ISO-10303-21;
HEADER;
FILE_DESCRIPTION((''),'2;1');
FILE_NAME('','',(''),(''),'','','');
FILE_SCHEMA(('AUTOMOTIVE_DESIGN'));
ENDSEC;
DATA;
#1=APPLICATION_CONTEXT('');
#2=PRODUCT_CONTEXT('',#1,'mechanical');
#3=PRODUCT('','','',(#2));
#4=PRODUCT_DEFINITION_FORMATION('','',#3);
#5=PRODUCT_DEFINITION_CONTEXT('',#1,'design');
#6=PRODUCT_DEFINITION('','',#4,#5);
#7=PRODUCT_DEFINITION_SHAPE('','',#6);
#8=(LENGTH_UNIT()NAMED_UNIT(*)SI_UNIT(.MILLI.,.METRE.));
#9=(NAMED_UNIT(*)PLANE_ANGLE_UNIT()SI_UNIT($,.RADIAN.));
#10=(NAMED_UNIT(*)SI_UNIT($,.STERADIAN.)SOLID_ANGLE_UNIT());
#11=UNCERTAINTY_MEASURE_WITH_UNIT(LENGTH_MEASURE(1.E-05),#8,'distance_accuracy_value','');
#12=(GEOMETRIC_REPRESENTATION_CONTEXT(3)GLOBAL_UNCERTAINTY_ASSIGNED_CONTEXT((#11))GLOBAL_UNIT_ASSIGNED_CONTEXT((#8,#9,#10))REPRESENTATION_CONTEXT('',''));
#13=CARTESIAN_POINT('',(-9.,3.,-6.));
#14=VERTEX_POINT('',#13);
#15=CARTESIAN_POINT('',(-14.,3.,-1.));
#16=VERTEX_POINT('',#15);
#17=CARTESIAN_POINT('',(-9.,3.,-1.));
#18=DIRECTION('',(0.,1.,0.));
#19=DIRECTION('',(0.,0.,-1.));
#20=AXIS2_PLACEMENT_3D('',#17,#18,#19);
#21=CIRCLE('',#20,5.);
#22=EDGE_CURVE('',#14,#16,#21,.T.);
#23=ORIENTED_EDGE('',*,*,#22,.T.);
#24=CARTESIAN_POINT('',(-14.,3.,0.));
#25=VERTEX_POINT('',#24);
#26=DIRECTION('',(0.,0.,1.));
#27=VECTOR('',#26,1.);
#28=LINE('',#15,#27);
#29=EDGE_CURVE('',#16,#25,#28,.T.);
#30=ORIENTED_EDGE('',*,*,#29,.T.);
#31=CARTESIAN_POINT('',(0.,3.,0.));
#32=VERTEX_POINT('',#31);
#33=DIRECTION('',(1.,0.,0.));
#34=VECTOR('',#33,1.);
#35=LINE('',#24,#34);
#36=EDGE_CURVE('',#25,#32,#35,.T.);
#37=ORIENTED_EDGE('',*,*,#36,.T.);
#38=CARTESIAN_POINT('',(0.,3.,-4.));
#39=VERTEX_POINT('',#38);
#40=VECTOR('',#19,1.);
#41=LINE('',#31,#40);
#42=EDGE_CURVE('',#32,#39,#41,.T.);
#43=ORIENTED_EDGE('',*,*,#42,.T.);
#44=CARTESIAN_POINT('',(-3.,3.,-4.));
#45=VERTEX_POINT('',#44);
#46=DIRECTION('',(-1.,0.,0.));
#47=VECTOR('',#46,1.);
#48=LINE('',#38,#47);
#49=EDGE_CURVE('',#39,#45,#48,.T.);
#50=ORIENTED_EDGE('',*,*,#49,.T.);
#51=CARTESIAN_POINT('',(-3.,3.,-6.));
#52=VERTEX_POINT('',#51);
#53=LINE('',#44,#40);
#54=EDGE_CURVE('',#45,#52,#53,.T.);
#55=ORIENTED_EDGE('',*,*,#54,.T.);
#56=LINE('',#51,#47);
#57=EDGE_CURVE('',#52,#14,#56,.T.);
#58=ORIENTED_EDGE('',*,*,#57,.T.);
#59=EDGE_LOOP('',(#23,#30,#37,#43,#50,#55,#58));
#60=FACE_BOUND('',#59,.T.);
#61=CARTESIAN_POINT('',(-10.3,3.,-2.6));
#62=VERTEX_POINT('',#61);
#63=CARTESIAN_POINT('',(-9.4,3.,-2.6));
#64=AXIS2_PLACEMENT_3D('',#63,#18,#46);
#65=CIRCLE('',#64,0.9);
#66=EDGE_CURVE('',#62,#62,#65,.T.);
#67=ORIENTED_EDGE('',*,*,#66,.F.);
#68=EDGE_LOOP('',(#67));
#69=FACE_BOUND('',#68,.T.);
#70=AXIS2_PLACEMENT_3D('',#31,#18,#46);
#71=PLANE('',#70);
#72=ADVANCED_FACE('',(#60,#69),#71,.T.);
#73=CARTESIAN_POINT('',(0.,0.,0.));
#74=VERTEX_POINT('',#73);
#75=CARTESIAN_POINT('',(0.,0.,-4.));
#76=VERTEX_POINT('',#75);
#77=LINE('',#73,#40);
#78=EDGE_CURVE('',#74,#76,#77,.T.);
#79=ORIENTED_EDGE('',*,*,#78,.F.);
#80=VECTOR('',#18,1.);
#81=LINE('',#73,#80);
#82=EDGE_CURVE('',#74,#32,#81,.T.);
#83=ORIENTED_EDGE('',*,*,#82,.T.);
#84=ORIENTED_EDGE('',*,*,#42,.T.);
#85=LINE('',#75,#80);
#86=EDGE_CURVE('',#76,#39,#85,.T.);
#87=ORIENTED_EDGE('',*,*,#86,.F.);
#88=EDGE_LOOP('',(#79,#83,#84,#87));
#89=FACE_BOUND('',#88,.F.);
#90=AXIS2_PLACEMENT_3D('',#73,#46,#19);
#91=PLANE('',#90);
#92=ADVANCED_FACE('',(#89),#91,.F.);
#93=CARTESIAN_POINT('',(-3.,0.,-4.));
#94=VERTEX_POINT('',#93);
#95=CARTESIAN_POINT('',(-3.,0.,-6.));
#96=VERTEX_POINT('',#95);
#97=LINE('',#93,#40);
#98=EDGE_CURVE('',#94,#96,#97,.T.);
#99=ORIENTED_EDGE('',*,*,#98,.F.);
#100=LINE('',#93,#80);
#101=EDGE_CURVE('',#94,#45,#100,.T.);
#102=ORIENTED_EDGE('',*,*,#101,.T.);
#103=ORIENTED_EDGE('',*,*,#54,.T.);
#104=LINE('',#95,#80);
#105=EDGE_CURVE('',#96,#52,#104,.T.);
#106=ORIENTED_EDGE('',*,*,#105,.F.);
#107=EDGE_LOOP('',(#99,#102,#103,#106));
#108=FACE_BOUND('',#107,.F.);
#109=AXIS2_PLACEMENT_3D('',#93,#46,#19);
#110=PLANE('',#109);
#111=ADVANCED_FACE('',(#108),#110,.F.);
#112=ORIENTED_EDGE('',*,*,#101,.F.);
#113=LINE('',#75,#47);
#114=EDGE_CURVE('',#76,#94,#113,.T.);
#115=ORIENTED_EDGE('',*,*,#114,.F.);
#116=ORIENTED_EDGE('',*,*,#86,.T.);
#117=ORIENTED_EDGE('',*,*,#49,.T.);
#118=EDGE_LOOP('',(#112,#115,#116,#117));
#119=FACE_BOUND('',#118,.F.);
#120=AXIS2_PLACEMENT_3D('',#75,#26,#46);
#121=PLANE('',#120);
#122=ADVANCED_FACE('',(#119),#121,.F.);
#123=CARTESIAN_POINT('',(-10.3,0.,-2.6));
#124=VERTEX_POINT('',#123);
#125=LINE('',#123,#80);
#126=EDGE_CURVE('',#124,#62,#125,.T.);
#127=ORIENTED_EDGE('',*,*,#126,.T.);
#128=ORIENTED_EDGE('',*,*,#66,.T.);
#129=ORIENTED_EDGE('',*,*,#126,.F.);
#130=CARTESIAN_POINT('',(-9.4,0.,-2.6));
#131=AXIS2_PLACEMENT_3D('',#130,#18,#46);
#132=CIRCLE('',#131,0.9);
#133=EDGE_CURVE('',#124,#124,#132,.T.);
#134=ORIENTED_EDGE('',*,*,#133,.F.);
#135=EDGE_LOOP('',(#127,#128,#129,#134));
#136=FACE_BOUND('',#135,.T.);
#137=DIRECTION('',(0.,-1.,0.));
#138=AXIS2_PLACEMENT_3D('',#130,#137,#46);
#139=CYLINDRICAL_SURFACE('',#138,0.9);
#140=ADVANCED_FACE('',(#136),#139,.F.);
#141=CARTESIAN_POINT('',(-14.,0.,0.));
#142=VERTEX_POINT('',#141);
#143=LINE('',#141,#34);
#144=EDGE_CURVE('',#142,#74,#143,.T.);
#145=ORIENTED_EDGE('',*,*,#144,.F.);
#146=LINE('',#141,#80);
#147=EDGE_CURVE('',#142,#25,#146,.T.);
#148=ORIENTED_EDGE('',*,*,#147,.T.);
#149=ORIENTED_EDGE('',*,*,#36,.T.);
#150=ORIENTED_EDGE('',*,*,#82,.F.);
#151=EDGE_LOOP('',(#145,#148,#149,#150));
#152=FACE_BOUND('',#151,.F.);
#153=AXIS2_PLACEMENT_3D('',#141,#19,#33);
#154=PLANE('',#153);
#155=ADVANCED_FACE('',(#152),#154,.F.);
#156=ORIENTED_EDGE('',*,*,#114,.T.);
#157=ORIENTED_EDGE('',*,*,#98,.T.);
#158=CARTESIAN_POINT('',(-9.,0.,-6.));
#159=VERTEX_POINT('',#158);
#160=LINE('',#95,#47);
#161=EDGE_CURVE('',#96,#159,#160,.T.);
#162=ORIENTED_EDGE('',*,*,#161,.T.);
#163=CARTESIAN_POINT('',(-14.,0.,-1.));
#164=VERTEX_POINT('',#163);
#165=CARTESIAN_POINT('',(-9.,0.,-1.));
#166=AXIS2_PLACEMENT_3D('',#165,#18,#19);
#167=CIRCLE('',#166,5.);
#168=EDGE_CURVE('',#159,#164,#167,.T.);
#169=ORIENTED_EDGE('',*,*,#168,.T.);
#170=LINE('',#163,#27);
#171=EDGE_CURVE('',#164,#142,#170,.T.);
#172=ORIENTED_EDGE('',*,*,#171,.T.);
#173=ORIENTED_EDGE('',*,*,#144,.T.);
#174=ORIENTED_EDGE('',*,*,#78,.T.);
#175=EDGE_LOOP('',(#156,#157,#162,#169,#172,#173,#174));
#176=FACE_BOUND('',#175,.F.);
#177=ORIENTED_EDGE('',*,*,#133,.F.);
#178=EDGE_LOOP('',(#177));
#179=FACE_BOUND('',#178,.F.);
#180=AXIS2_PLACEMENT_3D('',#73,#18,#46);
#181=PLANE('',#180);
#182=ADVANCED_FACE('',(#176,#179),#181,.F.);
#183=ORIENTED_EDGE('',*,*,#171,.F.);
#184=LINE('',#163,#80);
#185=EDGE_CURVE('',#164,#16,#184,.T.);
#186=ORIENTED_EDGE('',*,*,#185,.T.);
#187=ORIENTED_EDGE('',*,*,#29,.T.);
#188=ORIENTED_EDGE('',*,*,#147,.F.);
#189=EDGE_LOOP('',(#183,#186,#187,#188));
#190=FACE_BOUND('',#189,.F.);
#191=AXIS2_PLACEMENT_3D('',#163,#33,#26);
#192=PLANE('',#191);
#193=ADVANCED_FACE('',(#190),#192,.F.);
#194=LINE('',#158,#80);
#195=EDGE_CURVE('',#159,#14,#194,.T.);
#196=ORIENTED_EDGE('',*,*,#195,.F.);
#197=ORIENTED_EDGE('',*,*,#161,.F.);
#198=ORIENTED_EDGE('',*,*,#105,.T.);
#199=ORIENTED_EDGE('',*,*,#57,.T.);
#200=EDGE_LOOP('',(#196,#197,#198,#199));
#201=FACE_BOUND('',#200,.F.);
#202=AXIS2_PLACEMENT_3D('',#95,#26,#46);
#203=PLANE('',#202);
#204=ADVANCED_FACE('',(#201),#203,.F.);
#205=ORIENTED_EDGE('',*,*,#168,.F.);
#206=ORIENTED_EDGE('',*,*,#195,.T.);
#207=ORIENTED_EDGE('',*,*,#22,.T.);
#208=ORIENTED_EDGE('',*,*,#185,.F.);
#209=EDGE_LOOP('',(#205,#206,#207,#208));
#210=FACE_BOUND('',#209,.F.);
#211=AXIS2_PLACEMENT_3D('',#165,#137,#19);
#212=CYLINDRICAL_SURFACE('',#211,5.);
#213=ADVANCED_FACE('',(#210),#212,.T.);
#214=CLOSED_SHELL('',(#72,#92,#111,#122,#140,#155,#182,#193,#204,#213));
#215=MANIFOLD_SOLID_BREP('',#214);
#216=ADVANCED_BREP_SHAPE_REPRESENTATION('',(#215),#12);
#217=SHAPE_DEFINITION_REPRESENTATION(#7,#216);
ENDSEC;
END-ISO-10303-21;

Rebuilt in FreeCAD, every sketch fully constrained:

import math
import FreeCAD as App
import Part
import Sketcher

V = App.Vector
Q = App.Units.Quantity

doc = App.newDocument("Part")
body = doc.addObject("PartDesign::Body", "Body")

# Sketch on XZ plane
sketch1 = doc.addObject("Sketcher::SketchObject", "Sketch")
body.addObject(sketch1)
sketch1.AttachmentSupport = (doc.XZ_Plane, [""])
sketch1.MapMode = "FlatFace"
sketch1.addGeometry(Part.LineSegment(V(-14, 0, 0), V(0, 0, 0)), False)
sketch1.addGeometry(Part.LineSegment(V(0, 0, 0), V(0, -4, 0)), False)
sketch1.addGeometry(Part.LineSegment(V(0, -4, 0), V(-3, -4, 0)), False)
sketch1.addGeometry(Part.LineSegment(V(-3, -4, 0), V(-3, -6, 0)), False)
sketch1.addGeometry(Part.LineSegment(V(-3, -6, 0), V(-9, -6, 0)), False)
sketch1.addGeometry(Part.ArcOfCircle(Part.Circle(V(-9, -1, 0), V(0, 0, 1), 5), math.radians(180), math.radians(270)), False)
sketch1.addGeometry(Part.LineSegment(V(-14, -1, 0), V(-14, 0, 0)), False)
sketch1.addGeometry(Part.Circle(V(-9.4, -2.6, 0), V(0, 0, 1), 0.9), False)
sketch1.addConstraint(Sketcher.Constraint("Coincident", 0, 2, 1, 1))
sketch1.addConstraint(Sketcher.Constraint("Coincident", 1, 2, 2, 1))
sketch1.addConstraint(Sketcher.Constraint("Coincident", 2, 2, 3, 1))
sketch1.addConstraint(Sketcher.Constraint("Coincident", 3, 2, 4, 1))
sketch1.addConstraint(Sketcher.Constraint("Tangent", 4, 2, 5, 2))
sketch1.addConstraint(Sketcher.Constraint("Tangent", 5, 1, 6, 1))
sketch1.addConstraint(Sketcher.Constraint("Coincident", 6, 2, 0, 1))
sketch1.addConstraint(Sketcher.Constraint("Horizontal", 0))
sketch1.addConstraint(Sketcher.Constraint("Vertical", 1))
sketch1.addConstraint(Sketcher.Constraint("Horizontal", 2))
sketch1.addConstraint(Sketcher.Constraint("Vertical", 3))
sketch1.addConstraint(Sketcher.Constraint("Horizontal", 4))
sketch1.addConstraint(Sketcher.Constraint("Vertical", 6))
sketch1.addConstraint(Sketcher.Constraint("Coincident", 0, 2, -1, 1))
sketch1.addConstraint(Sketcher.Constraint("Radius", 5, Q("5 mm")))
sketch1.addConstraint(Sketcher.Constraint("Diameter", 7, Q("1.8 mm")))
sketch1.addConstraint(Sketcher.Constraint("DistanceX", 0, 1, 0, 2, Q("14 mm")))
sketch1.addConstraint(Sketcher.Constraint("DistanceX", 2, 2, 2, 1, Q("3 mm")))
sketch1.addConstraint(Sketcher.Constraint("DistanceY", 3, 2, 3, 1, Q("2 mm")))
sketch1.addConstraint(Sketcher.Constraint("DistanceY", 3, 2, -1, 1, Q("6 mm")))
sketch1.addConstraint(Sketcher.Constraint("DistanceY", 7, 3, -1, 1, Q("2.6 mm")))
sketch1.addConstraint(Sketcher.Constraint("DistanceX", 5, 1, 7, 3, Q("4.6 mm")))
pad1 = doc.addObject("PartDesign::Pad", "Pad")
body.addObject(pad1)
pad1.Profile = sketch1
pad1.Length = 3
pad1.Reversed = True

doc.recompute()
